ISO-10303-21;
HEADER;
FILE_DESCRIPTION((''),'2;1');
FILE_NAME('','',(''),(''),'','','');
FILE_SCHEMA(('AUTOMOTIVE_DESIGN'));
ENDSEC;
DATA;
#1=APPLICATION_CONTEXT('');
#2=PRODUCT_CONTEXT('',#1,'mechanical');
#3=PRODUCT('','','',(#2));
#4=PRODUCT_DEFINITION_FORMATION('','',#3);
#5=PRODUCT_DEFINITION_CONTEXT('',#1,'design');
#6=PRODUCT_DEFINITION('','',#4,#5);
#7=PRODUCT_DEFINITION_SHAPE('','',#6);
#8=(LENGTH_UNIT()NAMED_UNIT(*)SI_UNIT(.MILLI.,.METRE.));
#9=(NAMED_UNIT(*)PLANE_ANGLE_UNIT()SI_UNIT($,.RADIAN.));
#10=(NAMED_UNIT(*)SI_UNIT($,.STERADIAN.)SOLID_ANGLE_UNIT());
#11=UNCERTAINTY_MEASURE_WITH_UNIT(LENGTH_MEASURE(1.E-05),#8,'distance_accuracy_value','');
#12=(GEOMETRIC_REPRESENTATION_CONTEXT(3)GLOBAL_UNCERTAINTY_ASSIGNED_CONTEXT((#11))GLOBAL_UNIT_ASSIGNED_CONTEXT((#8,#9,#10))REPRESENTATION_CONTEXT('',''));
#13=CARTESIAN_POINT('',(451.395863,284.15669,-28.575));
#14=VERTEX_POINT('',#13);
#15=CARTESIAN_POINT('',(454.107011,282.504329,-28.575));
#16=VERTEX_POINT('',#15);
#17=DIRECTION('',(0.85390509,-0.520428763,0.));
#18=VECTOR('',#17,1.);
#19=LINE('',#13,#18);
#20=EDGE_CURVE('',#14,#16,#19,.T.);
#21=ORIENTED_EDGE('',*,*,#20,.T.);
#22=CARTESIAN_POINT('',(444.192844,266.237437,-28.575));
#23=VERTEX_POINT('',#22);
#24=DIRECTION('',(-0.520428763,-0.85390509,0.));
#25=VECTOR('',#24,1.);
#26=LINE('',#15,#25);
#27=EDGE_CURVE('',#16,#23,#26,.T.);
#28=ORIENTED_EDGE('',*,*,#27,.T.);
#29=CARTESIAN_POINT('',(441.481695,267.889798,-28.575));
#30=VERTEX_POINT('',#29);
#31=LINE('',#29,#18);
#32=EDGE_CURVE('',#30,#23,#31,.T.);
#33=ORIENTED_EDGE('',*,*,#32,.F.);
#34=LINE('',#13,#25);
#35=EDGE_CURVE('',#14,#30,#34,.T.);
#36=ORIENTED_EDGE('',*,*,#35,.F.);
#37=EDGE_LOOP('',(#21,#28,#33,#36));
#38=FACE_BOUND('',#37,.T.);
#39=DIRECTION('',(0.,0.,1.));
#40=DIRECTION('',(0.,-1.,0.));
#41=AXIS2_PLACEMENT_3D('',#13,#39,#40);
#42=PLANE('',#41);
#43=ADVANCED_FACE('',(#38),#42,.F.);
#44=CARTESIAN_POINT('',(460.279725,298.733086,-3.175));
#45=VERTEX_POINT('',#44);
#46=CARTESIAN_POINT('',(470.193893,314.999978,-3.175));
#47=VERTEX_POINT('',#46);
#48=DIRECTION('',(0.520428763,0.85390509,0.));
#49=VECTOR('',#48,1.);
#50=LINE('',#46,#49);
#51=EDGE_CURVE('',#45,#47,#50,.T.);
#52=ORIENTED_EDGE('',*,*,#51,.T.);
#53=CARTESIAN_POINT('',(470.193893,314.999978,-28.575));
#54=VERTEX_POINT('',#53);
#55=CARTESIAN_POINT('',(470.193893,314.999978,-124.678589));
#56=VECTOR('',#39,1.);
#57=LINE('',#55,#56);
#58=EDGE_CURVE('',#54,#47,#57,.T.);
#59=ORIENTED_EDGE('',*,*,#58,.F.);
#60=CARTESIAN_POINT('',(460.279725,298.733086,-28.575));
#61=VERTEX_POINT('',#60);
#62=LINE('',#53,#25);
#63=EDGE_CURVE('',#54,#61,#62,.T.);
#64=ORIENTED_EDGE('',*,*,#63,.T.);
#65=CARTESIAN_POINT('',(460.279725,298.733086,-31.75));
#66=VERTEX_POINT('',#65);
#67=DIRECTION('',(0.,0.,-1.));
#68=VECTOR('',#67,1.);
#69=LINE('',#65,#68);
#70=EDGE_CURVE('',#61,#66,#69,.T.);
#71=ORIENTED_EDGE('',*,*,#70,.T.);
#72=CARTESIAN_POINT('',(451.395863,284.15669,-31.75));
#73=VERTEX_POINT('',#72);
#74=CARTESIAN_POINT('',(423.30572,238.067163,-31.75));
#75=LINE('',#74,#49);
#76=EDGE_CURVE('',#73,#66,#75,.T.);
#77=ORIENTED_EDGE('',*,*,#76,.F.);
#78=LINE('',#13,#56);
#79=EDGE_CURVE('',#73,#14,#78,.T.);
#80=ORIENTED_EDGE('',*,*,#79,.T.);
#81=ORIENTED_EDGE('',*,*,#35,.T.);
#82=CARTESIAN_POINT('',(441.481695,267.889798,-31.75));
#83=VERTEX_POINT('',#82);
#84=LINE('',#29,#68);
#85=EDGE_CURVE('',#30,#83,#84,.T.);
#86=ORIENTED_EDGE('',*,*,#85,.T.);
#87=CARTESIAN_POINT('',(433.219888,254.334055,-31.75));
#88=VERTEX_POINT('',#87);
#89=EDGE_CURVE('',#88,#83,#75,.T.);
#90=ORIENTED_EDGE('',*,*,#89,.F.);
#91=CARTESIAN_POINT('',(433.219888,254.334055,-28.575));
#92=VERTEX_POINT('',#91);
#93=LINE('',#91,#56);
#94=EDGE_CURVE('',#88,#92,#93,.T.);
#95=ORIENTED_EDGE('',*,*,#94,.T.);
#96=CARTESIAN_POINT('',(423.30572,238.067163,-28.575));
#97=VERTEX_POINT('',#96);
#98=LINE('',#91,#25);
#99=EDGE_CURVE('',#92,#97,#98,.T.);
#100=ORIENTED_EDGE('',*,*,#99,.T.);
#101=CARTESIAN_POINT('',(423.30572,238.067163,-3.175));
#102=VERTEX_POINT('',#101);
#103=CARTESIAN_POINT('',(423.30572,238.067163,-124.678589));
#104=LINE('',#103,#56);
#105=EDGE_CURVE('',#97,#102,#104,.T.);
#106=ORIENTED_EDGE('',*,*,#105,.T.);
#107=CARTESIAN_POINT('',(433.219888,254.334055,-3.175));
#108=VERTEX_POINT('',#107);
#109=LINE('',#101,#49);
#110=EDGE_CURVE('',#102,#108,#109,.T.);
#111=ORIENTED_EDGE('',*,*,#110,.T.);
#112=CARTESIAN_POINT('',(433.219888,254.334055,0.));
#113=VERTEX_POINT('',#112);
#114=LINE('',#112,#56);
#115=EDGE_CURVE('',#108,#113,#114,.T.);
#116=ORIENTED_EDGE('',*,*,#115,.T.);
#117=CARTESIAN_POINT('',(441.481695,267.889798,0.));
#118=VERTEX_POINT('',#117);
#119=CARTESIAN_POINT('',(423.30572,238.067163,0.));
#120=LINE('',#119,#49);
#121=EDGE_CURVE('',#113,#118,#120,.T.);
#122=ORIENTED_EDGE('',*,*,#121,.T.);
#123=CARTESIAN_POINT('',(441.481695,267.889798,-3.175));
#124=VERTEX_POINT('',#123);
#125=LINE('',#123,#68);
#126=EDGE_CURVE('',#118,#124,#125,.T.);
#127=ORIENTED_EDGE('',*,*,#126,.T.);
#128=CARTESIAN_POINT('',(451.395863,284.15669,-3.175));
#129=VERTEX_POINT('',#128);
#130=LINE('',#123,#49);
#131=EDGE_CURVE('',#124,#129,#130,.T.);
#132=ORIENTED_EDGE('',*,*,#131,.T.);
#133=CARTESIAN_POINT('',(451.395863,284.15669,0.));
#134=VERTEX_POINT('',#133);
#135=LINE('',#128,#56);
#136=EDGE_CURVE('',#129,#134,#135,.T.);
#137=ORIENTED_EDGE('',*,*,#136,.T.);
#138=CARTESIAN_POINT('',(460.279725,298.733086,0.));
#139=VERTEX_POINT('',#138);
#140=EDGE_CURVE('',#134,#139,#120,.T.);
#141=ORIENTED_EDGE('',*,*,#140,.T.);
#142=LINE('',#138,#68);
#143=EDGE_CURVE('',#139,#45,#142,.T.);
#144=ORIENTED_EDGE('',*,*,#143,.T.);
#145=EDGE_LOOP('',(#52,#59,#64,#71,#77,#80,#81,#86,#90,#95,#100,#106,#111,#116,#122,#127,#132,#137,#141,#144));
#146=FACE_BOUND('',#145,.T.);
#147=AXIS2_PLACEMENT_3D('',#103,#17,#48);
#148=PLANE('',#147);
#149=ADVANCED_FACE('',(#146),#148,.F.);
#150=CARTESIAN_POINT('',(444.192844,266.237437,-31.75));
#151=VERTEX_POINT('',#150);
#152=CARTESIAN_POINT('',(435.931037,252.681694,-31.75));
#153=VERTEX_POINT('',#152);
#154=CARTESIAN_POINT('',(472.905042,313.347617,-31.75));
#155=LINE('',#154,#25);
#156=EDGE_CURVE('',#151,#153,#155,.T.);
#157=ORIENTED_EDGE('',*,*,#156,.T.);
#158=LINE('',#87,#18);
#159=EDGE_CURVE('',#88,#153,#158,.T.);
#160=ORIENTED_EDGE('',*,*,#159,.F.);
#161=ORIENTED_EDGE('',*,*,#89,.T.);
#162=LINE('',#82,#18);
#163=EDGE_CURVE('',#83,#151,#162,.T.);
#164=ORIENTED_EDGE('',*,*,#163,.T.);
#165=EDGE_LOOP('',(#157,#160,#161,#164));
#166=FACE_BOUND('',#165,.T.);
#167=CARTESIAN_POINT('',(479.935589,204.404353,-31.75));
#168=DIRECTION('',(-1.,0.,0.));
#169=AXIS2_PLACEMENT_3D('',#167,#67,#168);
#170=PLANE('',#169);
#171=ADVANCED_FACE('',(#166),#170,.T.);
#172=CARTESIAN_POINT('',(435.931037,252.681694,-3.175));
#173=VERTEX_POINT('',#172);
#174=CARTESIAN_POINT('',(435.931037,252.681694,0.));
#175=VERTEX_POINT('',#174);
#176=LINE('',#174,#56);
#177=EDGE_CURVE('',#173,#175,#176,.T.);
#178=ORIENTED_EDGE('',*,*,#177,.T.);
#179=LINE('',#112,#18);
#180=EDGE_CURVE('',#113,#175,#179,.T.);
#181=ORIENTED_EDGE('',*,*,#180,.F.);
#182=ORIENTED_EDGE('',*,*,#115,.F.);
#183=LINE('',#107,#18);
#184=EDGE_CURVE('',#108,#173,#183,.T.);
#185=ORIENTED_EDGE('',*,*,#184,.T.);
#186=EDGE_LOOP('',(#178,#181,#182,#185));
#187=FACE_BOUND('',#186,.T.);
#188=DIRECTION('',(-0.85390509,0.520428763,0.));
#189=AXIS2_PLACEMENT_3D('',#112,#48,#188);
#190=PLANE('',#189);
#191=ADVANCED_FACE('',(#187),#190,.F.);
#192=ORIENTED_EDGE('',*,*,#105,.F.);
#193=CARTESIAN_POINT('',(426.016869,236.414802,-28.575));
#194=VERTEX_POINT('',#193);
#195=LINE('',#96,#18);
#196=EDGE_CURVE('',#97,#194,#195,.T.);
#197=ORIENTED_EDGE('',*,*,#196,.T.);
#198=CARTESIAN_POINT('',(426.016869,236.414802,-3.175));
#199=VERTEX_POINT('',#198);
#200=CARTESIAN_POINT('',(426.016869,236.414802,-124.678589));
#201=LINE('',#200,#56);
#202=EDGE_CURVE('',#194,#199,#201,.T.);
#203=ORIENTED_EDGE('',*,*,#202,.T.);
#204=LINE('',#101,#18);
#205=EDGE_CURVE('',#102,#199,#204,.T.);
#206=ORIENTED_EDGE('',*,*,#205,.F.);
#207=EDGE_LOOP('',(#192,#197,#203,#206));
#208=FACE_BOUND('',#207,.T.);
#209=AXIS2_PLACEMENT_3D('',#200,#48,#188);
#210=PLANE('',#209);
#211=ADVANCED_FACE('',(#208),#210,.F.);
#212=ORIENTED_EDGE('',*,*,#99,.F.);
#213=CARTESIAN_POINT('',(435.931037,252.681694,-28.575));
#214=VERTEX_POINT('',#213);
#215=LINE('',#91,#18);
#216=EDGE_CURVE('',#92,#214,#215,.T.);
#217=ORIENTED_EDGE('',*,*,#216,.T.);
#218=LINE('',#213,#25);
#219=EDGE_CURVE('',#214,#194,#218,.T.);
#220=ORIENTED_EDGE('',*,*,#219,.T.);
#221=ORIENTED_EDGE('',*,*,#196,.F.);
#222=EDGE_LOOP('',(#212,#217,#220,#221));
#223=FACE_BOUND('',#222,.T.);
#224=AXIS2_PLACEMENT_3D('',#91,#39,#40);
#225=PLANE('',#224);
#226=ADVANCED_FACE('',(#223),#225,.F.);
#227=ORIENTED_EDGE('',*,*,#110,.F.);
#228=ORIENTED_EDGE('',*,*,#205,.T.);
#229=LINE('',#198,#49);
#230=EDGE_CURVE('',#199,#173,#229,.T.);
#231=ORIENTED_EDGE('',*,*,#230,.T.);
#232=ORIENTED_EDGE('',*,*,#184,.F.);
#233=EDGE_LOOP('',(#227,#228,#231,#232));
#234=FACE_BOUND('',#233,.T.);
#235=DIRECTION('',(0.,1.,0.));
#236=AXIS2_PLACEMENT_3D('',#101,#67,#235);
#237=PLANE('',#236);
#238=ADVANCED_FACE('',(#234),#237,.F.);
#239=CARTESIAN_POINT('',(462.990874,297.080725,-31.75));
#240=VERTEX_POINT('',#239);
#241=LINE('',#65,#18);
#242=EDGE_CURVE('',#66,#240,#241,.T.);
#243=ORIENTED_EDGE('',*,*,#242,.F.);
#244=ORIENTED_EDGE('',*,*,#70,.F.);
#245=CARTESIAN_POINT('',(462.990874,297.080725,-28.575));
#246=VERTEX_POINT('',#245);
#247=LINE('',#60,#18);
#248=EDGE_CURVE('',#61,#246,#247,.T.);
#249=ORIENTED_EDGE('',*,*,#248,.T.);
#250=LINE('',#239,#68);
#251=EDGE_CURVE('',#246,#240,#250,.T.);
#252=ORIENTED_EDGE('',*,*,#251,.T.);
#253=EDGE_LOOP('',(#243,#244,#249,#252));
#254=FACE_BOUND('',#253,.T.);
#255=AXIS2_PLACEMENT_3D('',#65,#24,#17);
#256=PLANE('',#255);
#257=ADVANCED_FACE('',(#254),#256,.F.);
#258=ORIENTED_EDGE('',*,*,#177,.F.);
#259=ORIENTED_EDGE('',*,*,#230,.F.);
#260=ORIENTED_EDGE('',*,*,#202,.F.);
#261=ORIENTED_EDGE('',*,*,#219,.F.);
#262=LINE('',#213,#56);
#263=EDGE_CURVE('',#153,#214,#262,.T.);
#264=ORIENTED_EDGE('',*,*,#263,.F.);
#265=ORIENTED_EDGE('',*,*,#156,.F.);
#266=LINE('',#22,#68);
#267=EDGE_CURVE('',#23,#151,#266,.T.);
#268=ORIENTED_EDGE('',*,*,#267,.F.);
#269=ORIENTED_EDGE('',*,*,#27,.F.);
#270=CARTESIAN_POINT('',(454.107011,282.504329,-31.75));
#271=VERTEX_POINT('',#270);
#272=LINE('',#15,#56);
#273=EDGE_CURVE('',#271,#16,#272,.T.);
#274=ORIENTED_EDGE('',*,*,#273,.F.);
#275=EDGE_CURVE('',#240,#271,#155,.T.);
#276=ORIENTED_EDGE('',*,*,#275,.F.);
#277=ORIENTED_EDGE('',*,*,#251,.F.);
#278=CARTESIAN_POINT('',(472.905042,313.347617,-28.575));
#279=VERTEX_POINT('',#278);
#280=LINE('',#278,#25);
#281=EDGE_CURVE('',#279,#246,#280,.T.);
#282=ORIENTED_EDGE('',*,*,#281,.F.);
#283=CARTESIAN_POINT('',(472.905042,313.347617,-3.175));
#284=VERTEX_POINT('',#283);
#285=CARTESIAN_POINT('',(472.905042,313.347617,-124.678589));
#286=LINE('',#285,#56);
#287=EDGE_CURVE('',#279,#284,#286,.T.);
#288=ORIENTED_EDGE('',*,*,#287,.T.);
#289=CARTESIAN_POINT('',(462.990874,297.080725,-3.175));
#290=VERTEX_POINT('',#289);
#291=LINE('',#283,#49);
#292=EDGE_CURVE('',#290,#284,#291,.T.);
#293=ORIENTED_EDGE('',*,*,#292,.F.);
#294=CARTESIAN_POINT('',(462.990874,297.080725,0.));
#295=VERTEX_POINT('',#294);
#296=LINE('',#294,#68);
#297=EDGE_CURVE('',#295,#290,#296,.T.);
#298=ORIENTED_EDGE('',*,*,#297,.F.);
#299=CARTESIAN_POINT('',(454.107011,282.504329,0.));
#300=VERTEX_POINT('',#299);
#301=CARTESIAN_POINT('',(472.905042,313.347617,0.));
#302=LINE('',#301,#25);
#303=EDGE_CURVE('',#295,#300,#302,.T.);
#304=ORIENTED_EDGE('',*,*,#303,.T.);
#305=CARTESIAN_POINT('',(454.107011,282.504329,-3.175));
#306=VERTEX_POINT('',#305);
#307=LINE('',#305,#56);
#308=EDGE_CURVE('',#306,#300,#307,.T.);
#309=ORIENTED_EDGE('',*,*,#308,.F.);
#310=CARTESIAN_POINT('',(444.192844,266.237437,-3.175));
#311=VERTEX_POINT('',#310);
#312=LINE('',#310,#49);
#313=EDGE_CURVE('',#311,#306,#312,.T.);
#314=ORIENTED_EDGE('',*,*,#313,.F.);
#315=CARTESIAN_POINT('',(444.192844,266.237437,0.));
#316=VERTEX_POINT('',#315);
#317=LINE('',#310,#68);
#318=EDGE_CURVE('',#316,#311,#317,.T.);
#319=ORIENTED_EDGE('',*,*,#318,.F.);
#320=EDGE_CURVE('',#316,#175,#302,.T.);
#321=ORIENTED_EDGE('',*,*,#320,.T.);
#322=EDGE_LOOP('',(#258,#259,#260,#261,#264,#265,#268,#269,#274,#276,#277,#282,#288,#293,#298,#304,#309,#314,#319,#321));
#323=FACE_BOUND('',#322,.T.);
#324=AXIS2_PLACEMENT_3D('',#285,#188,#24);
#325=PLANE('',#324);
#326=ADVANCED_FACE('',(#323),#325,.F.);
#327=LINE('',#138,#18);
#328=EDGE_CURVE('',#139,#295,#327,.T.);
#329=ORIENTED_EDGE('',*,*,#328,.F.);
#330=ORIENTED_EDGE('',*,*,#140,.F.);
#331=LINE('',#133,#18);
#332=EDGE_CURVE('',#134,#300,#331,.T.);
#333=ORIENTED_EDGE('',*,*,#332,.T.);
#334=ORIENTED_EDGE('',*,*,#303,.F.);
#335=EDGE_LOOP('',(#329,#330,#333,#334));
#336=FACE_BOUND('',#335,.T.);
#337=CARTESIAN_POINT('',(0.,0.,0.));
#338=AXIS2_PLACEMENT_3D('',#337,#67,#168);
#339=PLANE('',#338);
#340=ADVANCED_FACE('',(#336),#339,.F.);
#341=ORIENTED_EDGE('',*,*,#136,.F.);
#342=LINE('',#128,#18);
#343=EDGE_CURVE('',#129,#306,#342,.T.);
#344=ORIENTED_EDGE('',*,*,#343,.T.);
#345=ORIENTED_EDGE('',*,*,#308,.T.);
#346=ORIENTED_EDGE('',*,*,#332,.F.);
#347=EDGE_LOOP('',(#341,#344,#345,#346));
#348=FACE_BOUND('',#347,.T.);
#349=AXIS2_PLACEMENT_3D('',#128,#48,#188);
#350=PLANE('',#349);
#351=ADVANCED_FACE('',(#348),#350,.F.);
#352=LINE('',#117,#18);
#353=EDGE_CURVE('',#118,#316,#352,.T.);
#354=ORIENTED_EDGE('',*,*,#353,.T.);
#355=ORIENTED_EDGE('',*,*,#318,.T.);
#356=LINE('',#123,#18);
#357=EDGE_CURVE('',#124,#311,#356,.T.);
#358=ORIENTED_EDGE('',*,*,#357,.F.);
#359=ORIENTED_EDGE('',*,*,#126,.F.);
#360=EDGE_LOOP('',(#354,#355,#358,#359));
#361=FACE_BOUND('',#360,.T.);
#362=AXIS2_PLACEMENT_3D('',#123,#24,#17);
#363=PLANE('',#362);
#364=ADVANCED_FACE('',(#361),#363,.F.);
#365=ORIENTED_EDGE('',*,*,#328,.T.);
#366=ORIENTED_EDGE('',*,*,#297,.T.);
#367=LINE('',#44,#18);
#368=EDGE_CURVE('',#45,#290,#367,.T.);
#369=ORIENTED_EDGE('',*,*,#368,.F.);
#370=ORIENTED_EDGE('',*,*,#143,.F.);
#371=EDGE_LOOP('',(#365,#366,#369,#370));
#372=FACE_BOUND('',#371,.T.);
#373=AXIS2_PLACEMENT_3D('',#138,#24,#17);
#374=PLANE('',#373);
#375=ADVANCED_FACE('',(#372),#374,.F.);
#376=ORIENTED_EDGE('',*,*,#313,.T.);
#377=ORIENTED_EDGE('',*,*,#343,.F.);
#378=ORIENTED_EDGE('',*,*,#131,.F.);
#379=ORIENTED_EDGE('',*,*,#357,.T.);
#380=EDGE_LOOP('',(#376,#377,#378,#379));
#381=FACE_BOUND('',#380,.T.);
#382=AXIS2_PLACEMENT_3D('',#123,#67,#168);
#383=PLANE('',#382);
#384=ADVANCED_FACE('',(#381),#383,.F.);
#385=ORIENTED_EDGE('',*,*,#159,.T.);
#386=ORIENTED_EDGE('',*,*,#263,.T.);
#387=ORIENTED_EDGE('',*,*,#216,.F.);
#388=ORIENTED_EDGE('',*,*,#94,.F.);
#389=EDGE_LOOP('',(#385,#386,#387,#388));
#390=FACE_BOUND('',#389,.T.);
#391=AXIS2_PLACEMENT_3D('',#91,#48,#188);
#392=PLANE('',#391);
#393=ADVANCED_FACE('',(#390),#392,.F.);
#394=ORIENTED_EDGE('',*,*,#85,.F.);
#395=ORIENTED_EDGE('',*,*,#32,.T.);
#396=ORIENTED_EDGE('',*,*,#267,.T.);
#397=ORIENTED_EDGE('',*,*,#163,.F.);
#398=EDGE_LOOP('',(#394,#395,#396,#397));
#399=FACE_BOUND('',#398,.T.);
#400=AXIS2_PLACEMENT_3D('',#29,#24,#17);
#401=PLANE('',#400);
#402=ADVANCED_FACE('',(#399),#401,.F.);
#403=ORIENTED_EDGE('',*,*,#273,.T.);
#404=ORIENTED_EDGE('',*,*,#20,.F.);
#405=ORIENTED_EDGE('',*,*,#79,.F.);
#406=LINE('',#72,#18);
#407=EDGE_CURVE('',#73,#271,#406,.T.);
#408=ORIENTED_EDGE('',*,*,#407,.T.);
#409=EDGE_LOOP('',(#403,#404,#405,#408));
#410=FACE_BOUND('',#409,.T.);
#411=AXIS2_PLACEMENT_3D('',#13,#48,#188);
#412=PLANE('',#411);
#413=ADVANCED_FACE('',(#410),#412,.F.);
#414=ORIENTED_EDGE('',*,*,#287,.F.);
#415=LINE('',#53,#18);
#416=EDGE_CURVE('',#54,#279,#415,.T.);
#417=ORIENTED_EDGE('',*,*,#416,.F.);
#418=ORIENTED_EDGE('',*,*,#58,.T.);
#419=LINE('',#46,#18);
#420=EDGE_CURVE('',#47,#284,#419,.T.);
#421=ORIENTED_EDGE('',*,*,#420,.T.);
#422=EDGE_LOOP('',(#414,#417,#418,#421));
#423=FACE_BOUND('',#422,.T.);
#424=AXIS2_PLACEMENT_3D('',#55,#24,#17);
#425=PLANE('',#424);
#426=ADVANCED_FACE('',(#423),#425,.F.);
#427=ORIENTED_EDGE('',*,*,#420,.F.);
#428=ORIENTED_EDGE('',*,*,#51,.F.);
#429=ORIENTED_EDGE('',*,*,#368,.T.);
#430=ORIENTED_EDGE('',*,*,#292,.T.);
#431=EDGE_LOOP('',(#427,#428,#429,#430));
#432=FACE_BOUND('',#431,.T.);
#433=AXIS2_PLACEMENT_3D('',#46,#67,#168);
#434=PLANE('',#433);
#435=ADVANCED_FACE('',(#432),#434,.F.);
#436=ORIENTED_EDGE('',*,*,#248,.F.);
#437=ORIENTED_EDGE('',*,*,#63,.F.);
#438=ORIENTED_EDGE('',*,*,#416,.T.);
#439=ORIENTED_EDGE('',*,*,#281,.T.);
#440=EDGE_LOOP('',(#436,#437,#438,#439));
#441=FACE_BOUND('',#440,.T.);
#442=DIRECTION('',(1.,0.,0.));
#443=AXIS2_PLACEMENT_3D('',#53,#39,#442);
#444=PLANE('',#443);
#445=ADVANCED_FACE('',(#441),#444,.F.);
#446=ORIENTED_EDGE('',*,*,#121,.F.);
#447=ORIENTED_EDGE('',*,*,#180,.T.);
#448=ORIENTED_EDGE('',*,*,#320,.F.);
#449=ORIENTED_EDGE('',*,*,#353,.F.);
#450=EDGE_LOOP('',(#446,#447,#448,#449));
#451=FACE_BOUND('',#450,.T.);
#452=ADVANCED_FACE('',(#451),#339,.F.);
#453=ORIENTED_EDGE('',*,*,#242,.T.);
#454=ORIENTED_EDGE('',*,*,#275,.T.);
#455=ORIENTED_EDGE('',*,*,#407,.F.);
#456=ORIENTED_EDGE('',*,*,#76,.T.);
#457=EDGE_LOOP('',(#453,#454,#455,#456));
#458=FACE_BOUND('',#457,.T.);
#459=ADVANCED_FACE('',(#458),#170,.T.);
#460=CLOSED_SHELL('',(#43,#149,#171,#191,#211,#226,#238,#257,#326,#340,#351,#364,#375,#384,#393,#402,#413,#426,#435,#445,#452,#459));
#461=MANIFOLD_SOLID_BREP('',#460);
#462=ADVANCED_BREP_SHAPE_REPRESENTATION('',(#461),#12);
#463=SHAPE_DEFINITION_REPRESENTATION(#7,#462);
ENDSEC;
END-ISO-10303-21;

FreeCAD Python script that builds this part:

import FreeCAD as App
import Part
import Sketcher
Q = App.Units.Quantity


def add_polygon(sketch, points):
    """Adds a closed chain of lines whose ends are joined by coincident constraints."""
    first, n = sketch.GeometryCount, len(points)
    for a, b in zip(points, points[1:] + points[:1]):
        sketch.addGeometry(Part.LineSegment(App.Vector(*a, 0), App.Vector(*b, 0)), False)
    for i in range(n):
        sketch.addConstraint(Sketcher.Constraint("Coincident", first + i, 2, first + (i + 1) % n, 1))

doc = App.newDocument("Part")
body = doc.addObject("PartDesign::Body", "Body")

sketch1 = body.newObject("Sketcher::SketchObject", "Sketch")
sketch1.AttachmentSupport = (doc.getObject("XY_Plane"), [""])
sketch1.MapMode = "FlatFace"
add_polygon(sketch1, [(470.193893, 314.999978), (423.30572, 238.067163), (426.016869, 236.414802), (472.905042, 313.347617)])
sketch1.addConstraint([
    Sketcher.Constraint("Perpendicular", 0, 1),
    Sketcher.Constraint("Perpendicular", 1, 2),
    Sketcher.Constraint("Perpendicular", 2, 3),
    Sketcher.Constraint("Distance", 1, Q("0.125 in")),
    Sketcher.Constraint("DistanceY", -1, 1, 1, 2, 236.414802),
    Sketcher.Constraint("DistanceX", -1, 1, 0, 2, 423.30572),
    Sketcher.Constraint("DistanceX", -1, 1, 1, 2, 426.016869),
    Sketcher.Constraint("DistanceX", 0, 2, 2, 2, 49.599322),
])
pad1 = body.newObject("PartDesign::Pad", "Pad")
pad1.Profile = sketch1
pad1.Length = Q("1.25 in")
pad1.Reversed = True

sketch2 = body.newObject("Sketcher::SketchObject", "Sketch001")
sketch2.Placement = App.Placement(App.Vector(205.569888, -125.288494, 0), App.Rotation(App.Vector(0, 0, -1), App.Vector(0.520428763, 0.85390509, 0), App.Vector(0.85390509, -0.520428763, 0), "ZXY"))
add_polygon(sketch2, [(0, 513.682511), (0, 494.632511), (3.175, 494.632511), (3.175, 513.682511)])
add_polygon(sketch2, [(28.575, 513.682511), (28.575, 494.632511), (31.75, 494.632511), (31.75, 513.682511)])
add_polygon(sketch2, [(0, 442.637235), (0, 423.587235), (3.175, 423.587235), (3.175, 442.637235)])
add_polygon(sketch2, [(28.575, 442.637235), (28.575, 423.587235), (31.75, 423.587235), (31.75, 442.637235)])
add_polygon(sketch2, [(28.575, 477.562235), (28.575, 458.512235), (31.75, 458.512235), (31.75, 477.562235)])
add_polygon(sketch2, [(0, 477.562235), (0, 458.512235), (3.175, 458.512235), (3.175, 477.562235)])
sketch2.addConstraint([
    Sketcher.Constraint("Vertical", 0),
    Sketcher.Constraint("Horizontal", 1),
    Sketcher.Constraint("Vertical", 2),
    Sketcher.Constraint("Horizontal", 3),
    Sketcher.Constraint("Vertical", 4),
    Sketcher.Constraint("Horizontal", 5),
    Sketcher.Constraint("Vertical", 6),
    Sketcher.Constraint("Horizontal", 7),
    Sketcher.Constraint("Vertical", 8),
    Sketcher.Constraint("Horizontal", 9),
    Sketcher.Constraint("Vertical", 10),
    Sketcher.Constraint("Horizontal", 11),
    Sketcher.Constraint("Vertical", 12),
    Sketcher.Constraint("Horizontal", 13),
    Sketcher.Constraint("Vertical", 14),
    Sketcher.Constraint("Horizontal", 15),
    Sketcher.Constraint("Vertical", 16),
    Sketcher.Constraint("Horizontal", 17),
    Sketcher.Constraint("Vertical", 18),
    Sketcher.Constraint("Horizontal", 19),
    Sketcher.Constraint("Vertical", 20),
    Sketcher.Constraint("Horizontal", 21),
    Sketcher.Constraint("Vertical", 22),
    Sketcher.Constraint("Horizontal", 23),
    Sketcher.Constraint("PointOnObject", 0, 2, -2),
    Sketcher.Constraint("PointOnObject", 8, 2, -2),
    Sketcher.Constraint("PointOnObject", 20, 2, -2),
    Sketcher.Constraint("Horizontal", 1, 2, 4, 2),
    Sketcher.Constraint("Horizontal", 3, 2, 6, 2),
    Sketcher.Constraint("Horizontal", 9, 2, 12, 2),
    Sketcher.Constraint("Horizontal", 11, 2, 14, 2),
    Sketcher.Constraint("Horizontal", 17, 2, 20, 2),
    Sketcher.Constraint("Horizontal", 19, 2, 22, 2),
    Sketcher.Constraint("Vertical", 2, 2, 9, 2),
    Sketcher.Constraint("Vertical", 7, 2, 12, 2),
    Sketcher.Constraint("Vertical", 6, 2, 13, 2),
    Sketcher.Constraint("Vertical", 15, 2, 16, 2),
    Sketcher.Constraint("Vertical", 14, 2, 17, 2),
    Sketcher.Constraint("Vertical", 10, 2, 21, 2),
    Sketcher.Constraint("Equal", 3, 5),
    Sketcher.Constraint("Equal", 6, 8),
    Sketcher.Constraint("Equal", 14, 16),
    Sketcher.Constraint("DistanceX", 1, 2, 4, 2, Q("1 in")),
    Sketcher.Constraint("DistanceY", 0, 2, 0, 1, Q("0.75 in")),
    Sketcher.Constraint("DistanceX", 1, 1, 1, 2, Q("0.125 in")),
    Sketcher.Constraint("DistanceY", 15, 2, 16, 2, Q("0.625 in")),
    Sketcher.Constraint("DistanceY", -1, 1, 0, 2, 494.632511),
    Sketcher.Constraint("DistanceY", -1, 1, 8, 2, 423.587235),
])
pocket1 = body.newObject("PartDesign::Pocket", "Pocket")
pocket1.Profile = sketch2
pocket1.Length = Q("0.125 in")

doc.recompute()
